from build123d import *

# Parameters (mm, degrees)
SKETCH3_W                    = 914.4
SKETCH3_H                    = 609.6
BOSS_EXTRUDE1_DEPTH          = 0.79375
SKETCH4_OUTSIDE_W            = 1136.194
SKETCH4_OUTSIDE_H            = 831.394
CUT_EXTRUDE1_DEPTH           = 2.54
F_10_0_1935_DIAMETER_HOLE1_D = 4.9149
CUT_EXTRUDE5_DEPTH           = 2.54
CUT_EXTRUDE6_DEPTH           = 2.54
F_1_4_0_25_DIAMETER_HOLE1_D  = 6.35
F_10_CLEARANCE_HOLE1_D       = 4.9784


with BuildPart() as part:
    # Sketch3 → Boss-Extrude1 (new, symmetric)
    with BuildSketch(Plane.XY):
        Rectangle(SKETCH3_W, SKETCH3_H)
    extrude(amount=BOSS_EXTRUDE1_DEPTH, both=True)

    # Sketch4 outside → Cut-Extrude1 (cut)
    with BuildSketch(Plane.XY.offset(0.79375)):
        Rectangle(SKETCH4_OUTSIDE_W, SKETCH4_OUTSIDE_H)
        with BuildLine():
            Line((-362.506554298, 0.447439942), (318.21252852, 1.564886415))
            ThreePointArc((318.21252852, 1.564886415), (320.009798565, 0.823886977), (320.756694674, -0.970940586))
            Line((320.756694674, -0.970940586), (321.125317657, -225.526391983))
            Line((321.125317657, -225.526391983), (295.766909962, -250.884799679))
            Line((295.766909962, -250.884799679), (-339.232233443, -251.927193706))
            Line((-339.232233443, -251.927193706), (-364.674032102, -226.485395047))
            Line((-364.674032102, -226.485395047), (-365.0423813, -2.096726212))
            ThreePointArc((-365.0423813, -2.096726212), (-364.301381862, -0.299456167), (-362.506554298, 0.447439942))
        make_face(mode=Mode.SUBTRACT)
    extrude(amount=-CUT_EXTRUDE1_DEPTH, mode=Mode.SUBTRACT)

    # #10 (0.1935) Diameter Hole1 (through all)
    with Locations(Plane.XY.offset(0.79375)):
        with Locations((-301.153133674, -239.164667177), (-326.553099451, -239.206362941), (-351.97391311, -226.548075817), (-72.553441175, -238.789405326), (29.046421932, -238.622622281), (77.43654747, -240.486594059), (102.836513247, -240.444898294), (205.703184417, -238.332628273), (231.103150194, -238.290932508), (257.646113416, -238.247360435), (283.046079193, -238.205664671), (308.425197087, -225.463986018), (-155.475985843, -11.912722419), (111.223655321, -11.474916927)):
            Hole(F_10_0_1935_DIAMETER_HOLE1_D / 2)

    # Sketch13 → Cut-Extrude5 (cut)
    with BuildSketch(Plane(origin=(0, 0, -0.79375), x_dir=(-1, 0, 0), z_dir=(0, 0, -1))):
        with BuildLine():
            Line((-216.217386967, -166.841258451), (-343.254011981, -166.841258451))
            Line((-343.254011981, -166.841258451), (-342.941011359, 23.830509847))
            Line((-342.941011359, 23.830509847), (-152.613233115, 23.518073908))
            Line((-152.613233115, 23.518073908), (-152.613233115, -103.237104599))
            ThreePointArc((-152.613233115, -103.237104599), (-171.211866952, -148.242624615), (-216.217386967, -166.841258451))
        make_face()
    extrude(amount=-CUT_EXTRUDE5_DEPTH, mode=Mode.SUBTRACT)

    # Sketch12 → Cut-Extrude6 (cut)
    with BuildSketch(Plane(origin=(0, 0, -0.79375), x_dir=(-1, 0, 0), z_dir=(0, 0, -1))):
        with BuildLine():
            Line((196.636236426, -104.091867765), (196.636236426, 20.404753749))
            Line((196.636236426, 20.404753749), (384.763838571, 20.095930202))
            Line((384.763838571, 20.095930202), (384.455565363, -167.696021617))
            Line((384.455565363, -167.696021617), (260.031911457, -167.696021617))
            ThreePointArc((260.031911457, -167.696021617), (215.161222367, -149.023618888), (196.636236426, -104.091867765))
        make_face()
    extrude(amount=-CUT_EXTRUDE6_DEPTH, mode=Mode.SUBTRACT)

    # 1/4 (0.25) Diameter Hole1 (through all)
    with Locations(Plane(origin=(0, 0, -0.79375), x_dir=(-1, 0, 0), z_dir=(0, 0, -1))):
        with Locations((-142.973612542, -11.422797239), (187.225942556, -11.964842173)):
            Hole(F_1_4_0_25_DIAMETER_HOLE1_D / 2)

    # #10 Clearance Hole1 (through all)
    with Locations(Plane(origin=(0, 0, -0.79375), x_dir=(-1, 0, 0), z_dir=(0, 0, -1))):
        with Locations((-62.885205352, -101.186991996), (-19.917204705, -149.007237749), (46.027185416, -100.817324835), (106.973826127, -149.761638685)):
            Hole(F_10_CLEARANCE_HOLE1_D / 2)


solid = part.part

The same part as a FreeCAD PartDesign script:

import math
import FreeCAD as App
import Part
import Sketcher

V = App.Vector
Q = App.Units.Quantity


def add_polygon(sketch, points):
    """Adds a closed chain of lines whose ends are joined by coincident constraints."""
    first, n = sketch.GeometryCount, len(points)
    for a, b in zip(points, points[1:] + points[:1]):
        sketch.addGeometry(Part.LineSegment(App.Vector(*a, 0), App.Vector(*b, 0)), False)
    for i in range(n):
        sketch.addConstraint(Sketcher.Constraint("Coincident", first + i, 2, first + (i + 1) % n, 1))

doc = App.newDocument("Part")
body = doc.addObject("PartDesign::Body", "Body")

# Sketch on XY plane
sketch1 = body.newObject("Sketcher::SketchObject", "Sketch")
sketch1.AttachmentSupport = (doc.getObject("XY_Plane"), [""])
sketch1.MapMode = "FlatFace"
add_polygon(sketch1, [(-457, 305), (-457, -305), (457, -305), (457, 305)])  # lines 0-3
sketch1.addConstraint([
    Sketcher.Constraint("Vertical", 0),
    Sketcher.Constraint("Horizontal", 1),
    Sketcher.Constraint("Vertical", 2),
    Sketcher.Constraint("Horizontal", 3),
    Sketcher.Constraint("Symmetric", 0, 2, 2, 2, -1, 1),
    Sketcher.Constraint("DistanceX", 1, 1, 1, 2, Q("36 in")),
    Sketcher.Constraint("DistanceY", 0, 2, 0, 1, Q("24 in")),
])
pad1 = body.newObject("PartDesign::Pad", "Pad")
pad1.Profile = sketch1
pad1.Length = Q("0.0625 in")
pad1.Midplane = True

# Sketch on XY plane
sketch2 = body.newObject("Sketcher::SketchObject", "Sketch001")
sketch2.AttachmentSupport = (doc.getObject("XY_Plane"), [""])
sketch2.MapMode = "FlatFace"
sketch2.AttachmentOffset = App.Placement(V(0, 0, 0.03125 * 25.4), App.Rotation())
add_polygon(sketch2, [(-568.1, 415.7), (-568.1, -415.7), (568.1, -415.7), (568.1, 415.7)])  # lines 0-3
sketch2.addGeometry(Part.ArcOfCircle(Part.Circle(V(-362.5, -2.1, 0), V(0, 0, 1), 2.5), math.radians(90), math.radians(180)), False)  # 4
sketch2.addGeometry(Part.LineSegment(V(-362.5, 0.4, 0), V(318.2, 1.6, 0)), False)  # 5
sketch2.addGeometry(Part.ArcOfCircle(Part.Circle(V(318.2, -1, 0), V(0, 0, 1), 2.5), math.radians(0), math.radians(90)), False)  # 6
sketch2.addGeometry(Part.LineSegment(V(320.8, -1, 0), V(321.1, -225.5, 0)), False)  # 7
sketch2.addGeometry(Part.LineSegment(V(321.1, -225.5, 0), V(295.8, -250.9, 0)), False)  # 8
sketch2.addGeometry(Part.LineSegment(V(295.8, -250.9, 0), V(-339.2, -251.9, 0)), False)  # 9
sketch2.addGeometry(Part.LineSegment(V(-339.2, -251.9, 0), V(-364.7, -226.5, 0)), False)  # 10
sketch2.addGeometry(Part.LineSegment(V(-364.7, -226.5, 0), V(-365, -2.1, 0)), False)  # 11
sketch2.addConstraint([
    Sketcher.Constraint("Tangent", 4, 1, 5, 1),
    Sketcher.Constraint("Tangent", 5, 2, 6, 2),
    Sketcher.Constraint("Tangent", 6, 1, 7, 1),
    Sketcher.Constraint("Coincident", 7, 2, 8, 1),
    Sketcher.Constraint("Coincident", 8, 2, 9, 1),
    Sketcher.Constraint("Coincident", 9, 2, 10, 1),
    Sketcher.Constraint("Coincident", 10, 2, 11, 1),
    Sketcher.Constraint("Tangent", 11, 2, 4, 2),
    Sketcher.Constraint("Vertical", 0),
    Sketcher.Constraint("Horizontal", 1),
    Sketcher.Constraint("Vertical", 2),
    Sketcher.Constraint("Horizontal", 3),
    Sketcher.Constraint("Equal", 4, 6),
    Sketcher.Constraint("Symmetric", 0, 2, 2, 2, -1, 1),
    Sketcher.Constraint("Perpendicular", 5, 7),
    Sketcher.Constraint("Perpendicular", 7, 9),
    Sketcher.Constraint("Perpendicular", 8, 10),
    Sketcher.Constraint("Perpendicular", 9, 11),
    Sketcher.Constraint("Radius", 4, Q("0.1 in")),
    Sketcher.Constraint("Distance", 9, Q("25 in")),
    Sketcher.Constraint("Angle", 8, Q("-135 deg")),
    Sketcher.Constraint("Distance", 5, Q("26.8 in")),
    Sketcher.Constraint("DistanceX", 1, 1, 1, 2, 1136.194),
    Sketcher.Constraint("DistanceY", 0, 2, 0, 1, 831.394),
    Sketcher.Constraint("DistanceX", -1, 1, 6, 3, 318.216698),
    Sketcher.Constraint("DistanceY", 8, 2, -1, 1, 250.8848),
    Sketcher.Constraint("DistanceY", 9, 2, 7, 2, 26.400802),
    Sketcher.Constraint("DistanceX", 10, 2, 9, 2, 25.441799),
    Sketcher.Constraint("Distance", 11, 224.388971),
])
pocket1 = body.newObject("PartDesign::Pocket", "Pocket")
pocket1.Profile = sketch2
pocket1.Length = Q("0.1 in")

# Sketch on XY plane
sketch3 = body.newObject("Sketcher::SketchObject", "Sketch002")
sketch3.AttachmentSupport = (doc.getObject("XY_Plane"), [""])
sketch3.MapMode = "FlatFace"
sketch3.AttachmentOffset = App.Placement(V(0, 0, 0.03125 * 25.4), App.Rotation())
sketch3.addGeometry([
    Part.Circle(V(-301.2, -239.2, 0), V(0, 0, 1), 2.5),  # 0
    Part.Circle(V(-326.6, -239.2, 0), V(0, 0, 1), 2.5),  # 1
    Part.Circle(V(-352, -226.5, 0), V(0, 0, 1), 2.5),  # 2
    Part.Circle(V(-72.6, -238.8, 0), V(0, 0, 1), 2.5),  # 3
    Part.Circle(V(29, -238.6, 0), V(0, 0, 1), 2.5),  # 4
    Part.Circle(V(77.4, -240.5, 0), V(0, 0, 1), 2.5),  # 5
    Part.Circle(V(102.8, -240.4, 0), V(0, 0, 1), 2.5),  # 6
    Part.Circle(V(205.7, -238.3, 0), V(0, 0, 1), 2.5),  # 7
    Part.Circle(V(231.1, -238.3, 0), V(0, 0, 1), 2.5),  # 8
    Part.Circle(V(257.6, -238.2, 0), V(0, 0, 1), 2.5),  # 9
    Part.Circle(V(283, -238.2, 0), V(0, 0, 1), 2.5),  # 10
    Part.Circle(V(308.4, -225.5, 0), V(0, 0, 1), 2.5),  # 11
    Part.Circle(V(-155.5, -11.9, 0), V(0, 0, 1), 2.5),  # 12
    Part.Circle(V(111.2, -11.5, 0), V(0, 0, 1), 2.5),  # 13
], False)
sketch3.addConstraint([
    Sketcher.Constraint("Equal", 0, 1),
    Sketcher.Constraint("Equal", 1, 2),
    Sketcher.Constraint("Equal", 2, 3),
    Sketcher.Constraint("Equal", 3, 4),
    Sketcher.Constraint("Equal", 4, 5),
    Sketcher.Constraint("Equal", 5, 6),
    Sketcher.Constraint("Equal", 6, 7),
    Sketcher.Constraint("Equal", 7, 8),
    Sketcher.Constraint("Equal", 8, 9),
    Sketcher.Constraint("Equal", 9, 10),
    Sketcher.Constraint("Equal", 10, 11),
    Sketcher.Constraint("Equal", 11, 12),
    Sketcher.Constraint("Equal", 12, 13),
    Sketcher.Constraint("Diameter", 0, Q("0.1935 in")),
    Sketcher.Constraint("DistanceX", 1, 3, -1, 1, 326.553099),
    Sketcher.Constraint("DistanceY", 6, 3, -1, 1, 240.444898),
    Sketcher.Constraint("DistanceX", 6, 3, 9, 3, 154.8096),
    Sketcher.Constraint("DistanceY", 4, 3, 12, 3, 226.7099),
    Sketcher.Constraint("DistanceX", 3, 3, -1, 1, 72.553441),
    Sketcher.Constraint("DistanceX", -1, 1, 4, 3, 29.046422),
    Sketcher.Constraint("DistanceY", 7, 3, -1, 1, 238.332628),
    Sketcher.Constraint("DistanceX", -1, 1, 8, 3, 231.10315),
    Sketcher.Constraint("DistanceY", 9, 3, -1, 1, 238.24736),
    Sketcher.Constraint("DistanceX", -1, 1, 10, 3, 283.046079),
    Sketcher.Constraint("DistanceX", 2, 3, 0, 3, 50.820779),
    Sketcher.Constraint("DistanceY", 0, 3, 2, 3, 12.616591),
    Sketcher.Constraint("DistanceY", 0, 3, 3, 3, 0.375262),
    Sketcher.Constraint("DistanceX", 2, 3, 3, 3, 279.420472),
    Sketcher.Constraint("DistanceY", 1, 3, 4, 3, 0.583741),
    Sketcher.Constraint("DistanceY", 5, 3, 4, 3, 1.863972),
    Sketcher.Constraint("DistanceX", 3, 3, 5, 3, 149.989989),
    Sketcher.Constraint("DistanceY", 5, 3, 3, 3, 1.697189),
    Sketcher.Constraint("DistanceX", 4, 3, 6, 3, 73.790091),
    Sketcher.Constraint("DistanceY", 6, 3, 0, 3, 1.280231),
    Sketcher.Constraint("DistanceX", 6, 3, 7, 3, 102.866671),
    Sketcher.Constraint("DistanceY", 5, 3, 8, 3, 2.195662),
    Sketcher.Constraint("DistanceY", 5, 3, 10, 3, 2.280929),
    Sketcher.Constraint("DistanceY", 10, 3, 11, 3, 12.741679),
    Sketcher.Constraint("DistanceY", 6, 3, 13, 3, 228.969981),
    Sketcher.Constraint("DistanceX", 13, 3, 7, 3, 94.479529),
    Sketcher.Constraint("DistanceX", -1, 1, 11, 3, 308.425197),
    Sketcher.Constraint("DistanceX", 12, 3, -1, 1, 155.475986),
])
doc.recompute()
hole = body.newObject("PartDesign::Hole", "Hole")
hole.Profile = sketch3
hole.ThreadType = "None"
hole.Diameter = Q("0.1935 in")
hole.DepthType = "ThroughAll"

# Sketch on XY plane
sketch4 = body.newObject("Sketcher::SketchObject", "Sketch003")
sketch4.AttachmentSupport = (doc.getObject("XY_Plane"), [""])
sketch4.MapMode = "FlatFace"
sketch4.AttachmentOffset = App.Placement(V(0, 0, -0.03125 * 25.4), App.Rotation())
sketch4.addGeometry([
    Part.LineSegment(V(343, -167, 0), V(216, -167, 0)),  # 0
    Part.ArcOfCircle(Part.Circle(V(216, -103, 0), V(0, 0, 1), 63), math.radians(180), math.radians(270)),  # 1
    Part.LineSegment(V(153, -103, 0), V(153, 24, 0)),  # 2
    Part.LineSegment(V(153, 24, 0), V(343, 24, 0)),  # 3
    Part.LineSegment(V(343, 24, 0), V(343, -167, 0)),  # 4
], False)
sketch4.addConstraint([
    Sketcher.Constraint("Coincident", 0, 2, 1, 2),
    Sketcher.Constraint("Coincident", 1, 1, 2, 1),
    Sketcher.Constraint("Coincident", 2, 2, 3, 1),
    Sketcher.Constraint("Coincident", 3, 2, 4, 1),
    Sketcher.Constraint("Coincident", 4, 2, 0, 1),
    Sketcher.Constraint("Horizontal", 0),
    Sketcher.Constraint("Vertical", 2),
    Sketcher.Constraint("Perpendicular", 3, 4),
    Sketcher.Constraint("Radius", 1, Q("2.5 in")),
    Sketcher.Constraint("DistanceY", 2, 1, 2, 2, 126.755179),
    Sketcher.Constraint("DistanceX", 3, 2, 4, 2, 0.313001),
    Sketcher.Constraint("DistanceX", 0, 2, 0, 1, 127.036625),
    Sketcher.Constraint("DistanceY", 0, 2, -1, 1, 166.841258),
    Sketcher.Constraint("DistanceX", -1, 1, 3, 2, 342.941011),
    Sketcher.Constraint("DistanceY", -1, 1, 3, 2, 23.83051),
    Sketcher.Constraint("DistanceX", 1, 3, 0, 2, 0.104239),
])
pocket2 = body.newObject("PartDesign::Pocket", "Pocket001")
pocket2.Profile = sketch4
pocket2.Length = Q("0.1 in")
pocket2.Reversed = True

# Sketch on XY plane
sketch5 = body.newObject("Sketcher::SketchObject", "Sketch004")
sketch5.AttachmentSupport = (doc.getObject("XY_Plane"), [""])
sketch5.MapMode = "FlatFace"
sketch5.AttachmentOffset = App.Placement(V(0, 0, -0.03125 * 25.4), App.Rotation())
sketch5.addGeometry([
    Part.LineSegment(V(-197, 20, 0), V(-197, -104, 0)),  # 0
    Part.ArcOfCircle(Part.Circle(V(-260, -104, 0), V(0, 0, 1), 63), math.radians(-90), math.radians(0)),  # 1
    Part.LineSegment(V(-260, -168, 0), V(-384, -168, 0)),  # 2
    Part.LineSegment(V(-384, -168, 0), V(-385, 20, 0)),  # 3
    Part.LineSegment(V(-385, 20, 0), V(-197, 20, 0)),  # 4
], False)
sketch5.addConstraint([
    Sketcher.Constraint("Coincident", 0, 2, 1, 2),
    Sketcher.Constraint("Coincident", 1, 1, 2, 1),
    Sketcher.Constraint("Coincident", 2, 2, 3, 1),
    Sketcher.Constraint("Coincident", 3, 2, 4, 1),
    Sketcher.Constraint("Coincident", 4, 2, 0, 1),
    Sketcher.Constraint("Vertical", 0),
    Sketcher.Constraint("Horizontal", 2),
    Sketcher.Constraint("Perpendicular", 3, 4),
    Sketcher.Constraint("Radius", 1, Q("2.5 in")),
    Sketcher.Constraint("DistanceY", 0, 2, 0, 1, 124.496622),
    Sketcher.Constraint("DistanceX", 2, 2, 2, 1, 124.423654),
    Sketcher.Constraint("DistanceX", 1, 3, -1, 1, 260.136151),
    Sketcher.Constraint("DistanceX", 1, 1, -1, 1, 260.031911),
    Sketcher.Constraint("DistanceY", 1, 1, -1, 1, 167.696022),
    Sketcher.Constraint("DistanceX", 3, 2, -1, 1, 384.763839),
    Sketcher.Constraint("DistanceY", -1, 1, 3, 2, 20.09593),
])
pocket3 = body.newObject("PartDesign::Pocket", "Pocket002")
pocket3.Profile = sketch5
pocket3.Length = Q("0.1 in")
pocket3.Reversed = True

# Sketch on XY plane
sketch6 = body.newObject("Sketcher::SketchObject", "Sketch005")
sketch6.AttachmentSupport = (doc.getObject("XY_Plane"), [""])
sketch6.MapMode = "FlatFace"
sketch6.AttachmentOffset = App.Placement(V(0, 0, -0.03125 * 25.4), App.Rotation())
sketch6.addGeometry([
    Part.Circle(V(143, -11.4, 0), V(0, 0, 1), 3.2),
    Part.Circle(V(-187.2, -12, 0), V(0, 0, 1), 3.2),
], False)
sketch6.addConstraint([
    Sketcher.Constraint("Equal", 0, 1),
    Sketcher.Constraint("Diameter", 0, Q("0.25 in")),
    Sketcher.Constraint("DistanceX", 1, 3, -1, 1, Q("7.3711001 in")),
    Sketcher.Constraint("DistanceX", -1, 1, 0, 3, 142.973613),
    Sketcher.Constraint("DistanceY", 0, 3, -1, 1, 11.422797),
    Sketcher.Constraint("DistanceY", 1, 3, -1, 1, 11.964842),
])
doc.recompute()
hole2 = body.newObject("PartDesign::Hole", "Hole001")
hole2.Profile = sketch6
hole2.ThreadType = "None"
hole2.Diameter = Q("0.25 in")
hole2.DepthType = "ThroughAll"
hole2.Reversed = True

# Sketch on XY plane
sketch7 = body.newObject("Sketcher::SketchObject", "Sketch006")
sketch7.AttachmentSupport = (doc.getObject("XY_Plane"), [""])
sketch7.MapMode = "FlatFace"
sketch7.AttachmentOffset = App.Placement(V(0, 0, -0.03125 * 25.4), App.Rotation())
sketch7.addGeometry([
    Part.Circle(V(62.9, -101.2, 0), V(0, 0, 1), 2.5),
    Part.Circle(V(19.9, -149, 0), V(0, 0, 1), 2.5),
    Part.Circle(V(-46, -100.8, 0), V(0, 0, 1), 2.5),
    Part.Circle(V(-107, -149.8, 0), V(0, 0, 1), 2.5),
], False)
sketch7.addConstraint([
    Sketcher.Constraint("Equal", 0, 1),
    Sketcher.Constraint("Equal", 1, 2),
    Sketcher.Constraint("Equal", 2, 3),
    Sketcher.Constraint("Diameter", 0, Q("0.196 in")),
    Sketcher.Constraint("DistanceX", 1, 3, 0, 3, 42.968001),
    Sketcher.Constraint("DistanceY", 3, 3, 1, 3, 0.754401),
    Sketcher.Constraint("DistanceY", 0, 3, -1, 1, 101.186992),
    Sketcher.Constraint("DistanceY", 3, 3, -1, 1, 149.761639),
    Sketcher.Constraint("DistanceX", 2, 3, 1, 3, 65.94439),
    Sketcher.Constraint("DistanceX", 3, 3, 2, 3, 60.946641),
    Sketcher.Constraint("DistanceX", -1, 1, 0, 3, 62.885205),
    Sketcher.Constraint("DistanceY", 2, 3, -1, 1, 100.817325),
])
doc.recompute()
hole3 = body.newObject("PartDesign::Hole", "Hole002")
hole3.Profile = sketch7
hole3.ThreadType = "None"
hole3.Diameter = Q("0.196 in")
hole3.DepthType = "ThroughAll"
hole3.Reversed = True

doc.recompute()
